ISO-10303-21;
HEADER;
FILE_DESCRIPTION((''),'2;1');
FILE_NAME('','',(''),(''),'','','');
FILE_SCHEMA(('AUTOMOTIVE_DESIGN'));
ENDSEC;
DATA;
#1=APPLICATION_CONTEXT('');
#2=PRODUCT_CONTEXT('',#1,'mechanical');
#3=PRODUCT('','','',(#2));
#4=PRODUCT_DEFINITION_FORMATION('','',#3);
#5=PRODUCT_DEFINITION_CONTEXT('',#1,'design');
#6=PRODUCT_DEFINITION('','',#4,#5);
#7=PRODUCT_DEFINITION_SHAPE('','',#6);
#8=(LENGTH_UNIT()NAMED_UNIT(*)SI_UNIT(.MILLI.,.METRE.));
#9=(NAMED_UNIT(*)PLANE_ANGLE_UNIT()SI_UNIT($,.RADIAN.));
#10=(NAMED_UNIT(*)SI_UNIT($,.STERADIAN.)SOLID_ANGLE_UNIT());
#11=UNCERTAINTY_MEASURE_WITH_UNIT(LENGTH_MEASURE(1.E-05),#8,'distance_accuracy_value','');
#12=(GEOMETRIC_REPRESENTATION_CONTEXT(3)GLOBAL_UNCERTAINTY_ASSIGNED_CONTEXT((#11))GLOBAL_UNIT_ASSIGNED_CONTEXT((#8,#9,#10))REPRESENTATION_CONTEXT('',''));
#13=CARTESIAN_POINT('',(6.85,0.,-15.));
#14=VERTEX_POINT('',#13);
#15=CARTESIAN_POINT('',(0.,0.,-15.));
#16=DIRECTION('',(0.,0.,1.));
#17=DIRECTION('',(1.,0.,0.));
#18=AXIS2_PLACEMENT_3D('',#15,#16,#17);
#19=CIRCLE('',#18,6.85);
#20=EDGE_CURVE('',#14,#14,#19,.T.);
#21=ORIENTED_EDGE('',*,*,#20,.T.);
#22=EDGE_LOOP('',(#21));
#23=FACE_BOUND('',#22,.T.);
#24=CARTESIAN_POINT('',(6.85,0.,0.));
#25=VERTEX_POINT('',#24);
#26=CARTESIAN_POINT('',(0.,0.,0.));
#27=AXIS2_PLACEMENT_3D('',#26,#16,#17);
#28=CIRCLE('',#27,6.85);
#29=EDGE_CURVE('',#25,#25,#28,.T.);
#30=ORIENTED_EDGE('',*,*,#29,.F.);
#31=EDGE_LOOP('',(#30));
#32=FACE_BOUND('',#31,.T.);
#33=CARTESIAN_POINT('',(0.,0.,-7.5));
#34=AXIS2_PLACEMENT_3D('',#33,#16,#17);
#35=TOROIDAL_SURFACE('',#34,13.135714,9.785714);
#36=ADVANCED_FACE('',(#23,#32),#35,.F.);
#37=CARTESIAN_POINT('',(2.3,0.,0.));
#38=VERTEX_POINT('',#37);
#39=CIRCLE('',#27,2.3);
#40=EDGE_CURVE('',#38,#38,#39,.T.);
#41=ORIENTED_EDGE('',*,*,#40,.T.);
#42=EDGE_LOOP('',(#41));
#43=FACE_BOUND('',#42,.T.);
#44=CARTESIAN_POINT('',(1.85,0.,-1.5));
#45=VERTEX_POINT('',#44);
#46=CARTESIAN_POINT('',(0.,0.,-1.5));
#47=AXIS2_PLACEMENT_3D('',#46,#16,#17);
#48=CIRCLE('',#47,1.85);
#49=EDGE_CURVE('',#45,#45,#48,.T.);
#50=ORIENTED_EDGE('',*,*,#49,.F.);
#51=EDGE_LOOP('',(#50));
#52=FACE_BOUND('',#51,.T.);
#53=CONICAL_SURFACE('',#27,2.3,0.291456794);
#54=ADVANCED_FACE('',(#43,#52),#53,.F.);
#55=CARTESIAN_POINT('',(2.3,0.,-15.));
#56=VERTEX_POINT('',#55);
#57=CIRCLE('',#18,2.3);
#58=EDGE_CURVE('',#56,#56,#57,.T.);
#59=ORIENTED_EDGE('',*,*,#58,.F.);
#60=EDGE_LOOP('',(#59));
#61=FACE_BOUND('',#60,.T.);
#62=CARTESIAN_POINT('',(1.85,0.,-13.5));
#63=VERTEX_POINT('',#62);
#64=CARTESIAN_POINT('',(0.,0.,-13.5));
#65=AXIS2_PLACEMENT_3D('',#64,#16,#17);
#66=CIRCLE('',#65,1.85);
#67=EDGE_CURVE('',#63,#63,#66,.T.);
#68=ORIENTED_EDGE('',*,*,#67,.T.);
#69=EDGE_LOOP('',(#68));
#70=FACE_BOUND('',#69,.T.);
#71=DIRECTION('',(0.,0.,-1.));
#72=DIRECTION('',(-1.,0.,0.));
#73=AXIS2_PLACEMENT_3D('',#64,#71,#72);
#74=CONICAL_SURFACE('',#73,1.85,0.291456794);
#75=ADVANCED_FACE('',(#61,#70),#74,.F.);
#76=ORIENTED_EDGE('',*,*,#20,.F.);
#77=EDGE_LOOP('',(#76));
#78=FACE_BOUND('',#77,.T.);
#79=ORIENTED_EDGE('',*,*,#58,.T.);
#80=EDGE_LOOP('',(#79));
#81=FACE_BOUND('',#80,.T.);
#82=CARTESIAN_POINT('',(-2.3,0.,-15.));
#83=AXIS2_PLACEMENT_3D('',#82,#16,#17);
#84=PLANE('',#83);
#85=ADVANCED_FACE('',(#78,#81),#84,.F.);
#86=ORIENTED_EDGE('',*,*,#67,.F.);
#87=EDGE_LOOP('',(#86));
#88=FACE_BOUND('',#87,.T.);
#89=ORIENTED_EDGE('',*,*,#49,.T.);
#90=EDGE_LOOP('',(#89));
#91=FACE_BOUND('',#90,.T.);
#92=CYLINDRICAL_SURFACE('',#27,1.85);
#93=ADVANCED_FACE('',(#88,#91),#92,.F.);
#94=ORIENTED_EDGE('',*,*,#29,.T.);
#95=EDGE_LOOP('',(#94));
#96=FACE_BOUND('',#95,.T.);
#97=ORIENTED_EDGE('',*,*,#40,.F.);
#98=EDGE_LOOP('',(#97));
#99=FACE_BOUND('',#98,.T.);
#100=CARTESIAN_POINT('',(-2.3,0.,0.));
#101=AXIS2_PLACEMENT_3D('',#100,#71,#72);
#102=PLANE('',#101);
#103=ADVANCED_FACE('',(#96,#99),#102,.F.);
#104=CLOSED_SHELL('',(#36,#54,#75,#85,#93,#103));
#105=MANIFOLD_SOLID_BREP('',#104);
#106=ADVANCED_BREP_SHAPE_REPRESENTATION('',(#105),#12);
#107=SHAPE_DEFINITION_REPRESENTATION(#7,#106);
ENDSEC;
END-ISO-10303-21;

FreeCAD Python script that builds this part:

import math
import FreeCAD as App
import Part
import Sketcher
from FreeCAD import Vector
Q = App.Units.Quantity

doc = App.newDocument("Part")
params = doc.addObject("Spreadsheet::Sheet", "Params")
for row, (alias, value) in enumerate([
    ("sketch1_height", "12 mm"),
    ("sketch1_width", "4.55 mm"),
    ("revolution_angle", "360 deg"),
], start=1):
    params.set(f"A{row}", alias)
    params.set(f"B{row}", "=" + value)
    params.setAlias(f"B{row}", alias)

body = doc.addObject("PartDesign::Body", "Body")

sketch1 = body.newObject("Sketcher::SketchObject", "Sketch")
sketch1.AttachmentSupport = (doc.getObject("XZ_Plane"), [""])
sketch1.MapMode = "FlatFace"
sketch1.addGeometry([
    Part.LineSegment(Vector(-1.9, -1.5, 0), Vector(-1.9, -13.5, 0)),
    Part.LineSegment(Vector(-1.9, -13.5, 0), Vector(-2.3, -15, 0)),
    Part.LineSegment(Vector(-2.3, -15, 0), Vector(-6.8, -15, 0)),
    Part.ArcOfCircle(Part.Circle(Vector(-13.1, -7.5, 0), Vector(0, 0, 1), 9.8), math.radians(-50), math.radians(50)),
    Part.LineSegment(Vector(-6.8, 0, 0), Vector(-2.3, 0, 0)),
    Part.LineSegment(Vector(-2.3, 0, 0), Vector(-1.9, -1.5, 0)),
], False)
sketch1.addConstraint([
    Sketcher.Constraint("Coincident", 0, 2, 1, 1),
    Sketcher.Constraint("Coincident", 1, 2, 2, 1),
    Sketcher.Constraint("Coincident", 2, 2, 3, 1),
    Sketcher.Constraint("Coincident", 3, 2, 4, 1),
    Sketcher.Constraint("Coincident", 4, 2, 5, 1),
    Sketcher.Constraint("Coincident", 5, 2, 0, 1),
    Sketcher.Constraint("Vertical", 0),
    Sketcher.Constraint("Horizontal", 2),
    Sketcher.Constraint("Horizontal", 4),
    Sketcher.Constraint("PointOnObject", 3, 2, -1),
    Sketcher.Constraint("Vertical", 2, 2, 3, 2),
    Sketcher.Constraint("Vertical", 1, 2, 4, 2),
    Sketcher.Constraint("Equal", 1, 5),
    Sketcher.Constraint("DistanceY", 0, 2, 0, 1, Q("12 mm")),
    Sketcher.Constraint("DistanceY", 1, 2, -1, 1, Q("15 mm")),
    Sketcher.Constraint("DistanceX", 2, 2, 0, 2, Q("5 mm")),
    Sketcher.Constraint("DistanceX", 2, 2, 2, 1, Q("4.55 mm")),
    Sketcher.Constraint("DistanceX", 1, 2, -1, 1, Q("2.3 mm")),
    Sketcher.Constraint("Radius", 3, Q("9.785714 mm")),
])
sketch1.setExpression("Constraints[13]", "Params.sketch1_height")
sketch1.setExpression("Constraints[16]", "Params.sketch1_width")
revolution = body.newObject("PartDesign::Revolution", "Revolution")
revolution.Profile = sketch1
revolution.ReferenceAxis = (sketch1, ["V_Axis"])
revolution.setExpression("Angle", "Params.revolution_angle")

doc.recompute()
